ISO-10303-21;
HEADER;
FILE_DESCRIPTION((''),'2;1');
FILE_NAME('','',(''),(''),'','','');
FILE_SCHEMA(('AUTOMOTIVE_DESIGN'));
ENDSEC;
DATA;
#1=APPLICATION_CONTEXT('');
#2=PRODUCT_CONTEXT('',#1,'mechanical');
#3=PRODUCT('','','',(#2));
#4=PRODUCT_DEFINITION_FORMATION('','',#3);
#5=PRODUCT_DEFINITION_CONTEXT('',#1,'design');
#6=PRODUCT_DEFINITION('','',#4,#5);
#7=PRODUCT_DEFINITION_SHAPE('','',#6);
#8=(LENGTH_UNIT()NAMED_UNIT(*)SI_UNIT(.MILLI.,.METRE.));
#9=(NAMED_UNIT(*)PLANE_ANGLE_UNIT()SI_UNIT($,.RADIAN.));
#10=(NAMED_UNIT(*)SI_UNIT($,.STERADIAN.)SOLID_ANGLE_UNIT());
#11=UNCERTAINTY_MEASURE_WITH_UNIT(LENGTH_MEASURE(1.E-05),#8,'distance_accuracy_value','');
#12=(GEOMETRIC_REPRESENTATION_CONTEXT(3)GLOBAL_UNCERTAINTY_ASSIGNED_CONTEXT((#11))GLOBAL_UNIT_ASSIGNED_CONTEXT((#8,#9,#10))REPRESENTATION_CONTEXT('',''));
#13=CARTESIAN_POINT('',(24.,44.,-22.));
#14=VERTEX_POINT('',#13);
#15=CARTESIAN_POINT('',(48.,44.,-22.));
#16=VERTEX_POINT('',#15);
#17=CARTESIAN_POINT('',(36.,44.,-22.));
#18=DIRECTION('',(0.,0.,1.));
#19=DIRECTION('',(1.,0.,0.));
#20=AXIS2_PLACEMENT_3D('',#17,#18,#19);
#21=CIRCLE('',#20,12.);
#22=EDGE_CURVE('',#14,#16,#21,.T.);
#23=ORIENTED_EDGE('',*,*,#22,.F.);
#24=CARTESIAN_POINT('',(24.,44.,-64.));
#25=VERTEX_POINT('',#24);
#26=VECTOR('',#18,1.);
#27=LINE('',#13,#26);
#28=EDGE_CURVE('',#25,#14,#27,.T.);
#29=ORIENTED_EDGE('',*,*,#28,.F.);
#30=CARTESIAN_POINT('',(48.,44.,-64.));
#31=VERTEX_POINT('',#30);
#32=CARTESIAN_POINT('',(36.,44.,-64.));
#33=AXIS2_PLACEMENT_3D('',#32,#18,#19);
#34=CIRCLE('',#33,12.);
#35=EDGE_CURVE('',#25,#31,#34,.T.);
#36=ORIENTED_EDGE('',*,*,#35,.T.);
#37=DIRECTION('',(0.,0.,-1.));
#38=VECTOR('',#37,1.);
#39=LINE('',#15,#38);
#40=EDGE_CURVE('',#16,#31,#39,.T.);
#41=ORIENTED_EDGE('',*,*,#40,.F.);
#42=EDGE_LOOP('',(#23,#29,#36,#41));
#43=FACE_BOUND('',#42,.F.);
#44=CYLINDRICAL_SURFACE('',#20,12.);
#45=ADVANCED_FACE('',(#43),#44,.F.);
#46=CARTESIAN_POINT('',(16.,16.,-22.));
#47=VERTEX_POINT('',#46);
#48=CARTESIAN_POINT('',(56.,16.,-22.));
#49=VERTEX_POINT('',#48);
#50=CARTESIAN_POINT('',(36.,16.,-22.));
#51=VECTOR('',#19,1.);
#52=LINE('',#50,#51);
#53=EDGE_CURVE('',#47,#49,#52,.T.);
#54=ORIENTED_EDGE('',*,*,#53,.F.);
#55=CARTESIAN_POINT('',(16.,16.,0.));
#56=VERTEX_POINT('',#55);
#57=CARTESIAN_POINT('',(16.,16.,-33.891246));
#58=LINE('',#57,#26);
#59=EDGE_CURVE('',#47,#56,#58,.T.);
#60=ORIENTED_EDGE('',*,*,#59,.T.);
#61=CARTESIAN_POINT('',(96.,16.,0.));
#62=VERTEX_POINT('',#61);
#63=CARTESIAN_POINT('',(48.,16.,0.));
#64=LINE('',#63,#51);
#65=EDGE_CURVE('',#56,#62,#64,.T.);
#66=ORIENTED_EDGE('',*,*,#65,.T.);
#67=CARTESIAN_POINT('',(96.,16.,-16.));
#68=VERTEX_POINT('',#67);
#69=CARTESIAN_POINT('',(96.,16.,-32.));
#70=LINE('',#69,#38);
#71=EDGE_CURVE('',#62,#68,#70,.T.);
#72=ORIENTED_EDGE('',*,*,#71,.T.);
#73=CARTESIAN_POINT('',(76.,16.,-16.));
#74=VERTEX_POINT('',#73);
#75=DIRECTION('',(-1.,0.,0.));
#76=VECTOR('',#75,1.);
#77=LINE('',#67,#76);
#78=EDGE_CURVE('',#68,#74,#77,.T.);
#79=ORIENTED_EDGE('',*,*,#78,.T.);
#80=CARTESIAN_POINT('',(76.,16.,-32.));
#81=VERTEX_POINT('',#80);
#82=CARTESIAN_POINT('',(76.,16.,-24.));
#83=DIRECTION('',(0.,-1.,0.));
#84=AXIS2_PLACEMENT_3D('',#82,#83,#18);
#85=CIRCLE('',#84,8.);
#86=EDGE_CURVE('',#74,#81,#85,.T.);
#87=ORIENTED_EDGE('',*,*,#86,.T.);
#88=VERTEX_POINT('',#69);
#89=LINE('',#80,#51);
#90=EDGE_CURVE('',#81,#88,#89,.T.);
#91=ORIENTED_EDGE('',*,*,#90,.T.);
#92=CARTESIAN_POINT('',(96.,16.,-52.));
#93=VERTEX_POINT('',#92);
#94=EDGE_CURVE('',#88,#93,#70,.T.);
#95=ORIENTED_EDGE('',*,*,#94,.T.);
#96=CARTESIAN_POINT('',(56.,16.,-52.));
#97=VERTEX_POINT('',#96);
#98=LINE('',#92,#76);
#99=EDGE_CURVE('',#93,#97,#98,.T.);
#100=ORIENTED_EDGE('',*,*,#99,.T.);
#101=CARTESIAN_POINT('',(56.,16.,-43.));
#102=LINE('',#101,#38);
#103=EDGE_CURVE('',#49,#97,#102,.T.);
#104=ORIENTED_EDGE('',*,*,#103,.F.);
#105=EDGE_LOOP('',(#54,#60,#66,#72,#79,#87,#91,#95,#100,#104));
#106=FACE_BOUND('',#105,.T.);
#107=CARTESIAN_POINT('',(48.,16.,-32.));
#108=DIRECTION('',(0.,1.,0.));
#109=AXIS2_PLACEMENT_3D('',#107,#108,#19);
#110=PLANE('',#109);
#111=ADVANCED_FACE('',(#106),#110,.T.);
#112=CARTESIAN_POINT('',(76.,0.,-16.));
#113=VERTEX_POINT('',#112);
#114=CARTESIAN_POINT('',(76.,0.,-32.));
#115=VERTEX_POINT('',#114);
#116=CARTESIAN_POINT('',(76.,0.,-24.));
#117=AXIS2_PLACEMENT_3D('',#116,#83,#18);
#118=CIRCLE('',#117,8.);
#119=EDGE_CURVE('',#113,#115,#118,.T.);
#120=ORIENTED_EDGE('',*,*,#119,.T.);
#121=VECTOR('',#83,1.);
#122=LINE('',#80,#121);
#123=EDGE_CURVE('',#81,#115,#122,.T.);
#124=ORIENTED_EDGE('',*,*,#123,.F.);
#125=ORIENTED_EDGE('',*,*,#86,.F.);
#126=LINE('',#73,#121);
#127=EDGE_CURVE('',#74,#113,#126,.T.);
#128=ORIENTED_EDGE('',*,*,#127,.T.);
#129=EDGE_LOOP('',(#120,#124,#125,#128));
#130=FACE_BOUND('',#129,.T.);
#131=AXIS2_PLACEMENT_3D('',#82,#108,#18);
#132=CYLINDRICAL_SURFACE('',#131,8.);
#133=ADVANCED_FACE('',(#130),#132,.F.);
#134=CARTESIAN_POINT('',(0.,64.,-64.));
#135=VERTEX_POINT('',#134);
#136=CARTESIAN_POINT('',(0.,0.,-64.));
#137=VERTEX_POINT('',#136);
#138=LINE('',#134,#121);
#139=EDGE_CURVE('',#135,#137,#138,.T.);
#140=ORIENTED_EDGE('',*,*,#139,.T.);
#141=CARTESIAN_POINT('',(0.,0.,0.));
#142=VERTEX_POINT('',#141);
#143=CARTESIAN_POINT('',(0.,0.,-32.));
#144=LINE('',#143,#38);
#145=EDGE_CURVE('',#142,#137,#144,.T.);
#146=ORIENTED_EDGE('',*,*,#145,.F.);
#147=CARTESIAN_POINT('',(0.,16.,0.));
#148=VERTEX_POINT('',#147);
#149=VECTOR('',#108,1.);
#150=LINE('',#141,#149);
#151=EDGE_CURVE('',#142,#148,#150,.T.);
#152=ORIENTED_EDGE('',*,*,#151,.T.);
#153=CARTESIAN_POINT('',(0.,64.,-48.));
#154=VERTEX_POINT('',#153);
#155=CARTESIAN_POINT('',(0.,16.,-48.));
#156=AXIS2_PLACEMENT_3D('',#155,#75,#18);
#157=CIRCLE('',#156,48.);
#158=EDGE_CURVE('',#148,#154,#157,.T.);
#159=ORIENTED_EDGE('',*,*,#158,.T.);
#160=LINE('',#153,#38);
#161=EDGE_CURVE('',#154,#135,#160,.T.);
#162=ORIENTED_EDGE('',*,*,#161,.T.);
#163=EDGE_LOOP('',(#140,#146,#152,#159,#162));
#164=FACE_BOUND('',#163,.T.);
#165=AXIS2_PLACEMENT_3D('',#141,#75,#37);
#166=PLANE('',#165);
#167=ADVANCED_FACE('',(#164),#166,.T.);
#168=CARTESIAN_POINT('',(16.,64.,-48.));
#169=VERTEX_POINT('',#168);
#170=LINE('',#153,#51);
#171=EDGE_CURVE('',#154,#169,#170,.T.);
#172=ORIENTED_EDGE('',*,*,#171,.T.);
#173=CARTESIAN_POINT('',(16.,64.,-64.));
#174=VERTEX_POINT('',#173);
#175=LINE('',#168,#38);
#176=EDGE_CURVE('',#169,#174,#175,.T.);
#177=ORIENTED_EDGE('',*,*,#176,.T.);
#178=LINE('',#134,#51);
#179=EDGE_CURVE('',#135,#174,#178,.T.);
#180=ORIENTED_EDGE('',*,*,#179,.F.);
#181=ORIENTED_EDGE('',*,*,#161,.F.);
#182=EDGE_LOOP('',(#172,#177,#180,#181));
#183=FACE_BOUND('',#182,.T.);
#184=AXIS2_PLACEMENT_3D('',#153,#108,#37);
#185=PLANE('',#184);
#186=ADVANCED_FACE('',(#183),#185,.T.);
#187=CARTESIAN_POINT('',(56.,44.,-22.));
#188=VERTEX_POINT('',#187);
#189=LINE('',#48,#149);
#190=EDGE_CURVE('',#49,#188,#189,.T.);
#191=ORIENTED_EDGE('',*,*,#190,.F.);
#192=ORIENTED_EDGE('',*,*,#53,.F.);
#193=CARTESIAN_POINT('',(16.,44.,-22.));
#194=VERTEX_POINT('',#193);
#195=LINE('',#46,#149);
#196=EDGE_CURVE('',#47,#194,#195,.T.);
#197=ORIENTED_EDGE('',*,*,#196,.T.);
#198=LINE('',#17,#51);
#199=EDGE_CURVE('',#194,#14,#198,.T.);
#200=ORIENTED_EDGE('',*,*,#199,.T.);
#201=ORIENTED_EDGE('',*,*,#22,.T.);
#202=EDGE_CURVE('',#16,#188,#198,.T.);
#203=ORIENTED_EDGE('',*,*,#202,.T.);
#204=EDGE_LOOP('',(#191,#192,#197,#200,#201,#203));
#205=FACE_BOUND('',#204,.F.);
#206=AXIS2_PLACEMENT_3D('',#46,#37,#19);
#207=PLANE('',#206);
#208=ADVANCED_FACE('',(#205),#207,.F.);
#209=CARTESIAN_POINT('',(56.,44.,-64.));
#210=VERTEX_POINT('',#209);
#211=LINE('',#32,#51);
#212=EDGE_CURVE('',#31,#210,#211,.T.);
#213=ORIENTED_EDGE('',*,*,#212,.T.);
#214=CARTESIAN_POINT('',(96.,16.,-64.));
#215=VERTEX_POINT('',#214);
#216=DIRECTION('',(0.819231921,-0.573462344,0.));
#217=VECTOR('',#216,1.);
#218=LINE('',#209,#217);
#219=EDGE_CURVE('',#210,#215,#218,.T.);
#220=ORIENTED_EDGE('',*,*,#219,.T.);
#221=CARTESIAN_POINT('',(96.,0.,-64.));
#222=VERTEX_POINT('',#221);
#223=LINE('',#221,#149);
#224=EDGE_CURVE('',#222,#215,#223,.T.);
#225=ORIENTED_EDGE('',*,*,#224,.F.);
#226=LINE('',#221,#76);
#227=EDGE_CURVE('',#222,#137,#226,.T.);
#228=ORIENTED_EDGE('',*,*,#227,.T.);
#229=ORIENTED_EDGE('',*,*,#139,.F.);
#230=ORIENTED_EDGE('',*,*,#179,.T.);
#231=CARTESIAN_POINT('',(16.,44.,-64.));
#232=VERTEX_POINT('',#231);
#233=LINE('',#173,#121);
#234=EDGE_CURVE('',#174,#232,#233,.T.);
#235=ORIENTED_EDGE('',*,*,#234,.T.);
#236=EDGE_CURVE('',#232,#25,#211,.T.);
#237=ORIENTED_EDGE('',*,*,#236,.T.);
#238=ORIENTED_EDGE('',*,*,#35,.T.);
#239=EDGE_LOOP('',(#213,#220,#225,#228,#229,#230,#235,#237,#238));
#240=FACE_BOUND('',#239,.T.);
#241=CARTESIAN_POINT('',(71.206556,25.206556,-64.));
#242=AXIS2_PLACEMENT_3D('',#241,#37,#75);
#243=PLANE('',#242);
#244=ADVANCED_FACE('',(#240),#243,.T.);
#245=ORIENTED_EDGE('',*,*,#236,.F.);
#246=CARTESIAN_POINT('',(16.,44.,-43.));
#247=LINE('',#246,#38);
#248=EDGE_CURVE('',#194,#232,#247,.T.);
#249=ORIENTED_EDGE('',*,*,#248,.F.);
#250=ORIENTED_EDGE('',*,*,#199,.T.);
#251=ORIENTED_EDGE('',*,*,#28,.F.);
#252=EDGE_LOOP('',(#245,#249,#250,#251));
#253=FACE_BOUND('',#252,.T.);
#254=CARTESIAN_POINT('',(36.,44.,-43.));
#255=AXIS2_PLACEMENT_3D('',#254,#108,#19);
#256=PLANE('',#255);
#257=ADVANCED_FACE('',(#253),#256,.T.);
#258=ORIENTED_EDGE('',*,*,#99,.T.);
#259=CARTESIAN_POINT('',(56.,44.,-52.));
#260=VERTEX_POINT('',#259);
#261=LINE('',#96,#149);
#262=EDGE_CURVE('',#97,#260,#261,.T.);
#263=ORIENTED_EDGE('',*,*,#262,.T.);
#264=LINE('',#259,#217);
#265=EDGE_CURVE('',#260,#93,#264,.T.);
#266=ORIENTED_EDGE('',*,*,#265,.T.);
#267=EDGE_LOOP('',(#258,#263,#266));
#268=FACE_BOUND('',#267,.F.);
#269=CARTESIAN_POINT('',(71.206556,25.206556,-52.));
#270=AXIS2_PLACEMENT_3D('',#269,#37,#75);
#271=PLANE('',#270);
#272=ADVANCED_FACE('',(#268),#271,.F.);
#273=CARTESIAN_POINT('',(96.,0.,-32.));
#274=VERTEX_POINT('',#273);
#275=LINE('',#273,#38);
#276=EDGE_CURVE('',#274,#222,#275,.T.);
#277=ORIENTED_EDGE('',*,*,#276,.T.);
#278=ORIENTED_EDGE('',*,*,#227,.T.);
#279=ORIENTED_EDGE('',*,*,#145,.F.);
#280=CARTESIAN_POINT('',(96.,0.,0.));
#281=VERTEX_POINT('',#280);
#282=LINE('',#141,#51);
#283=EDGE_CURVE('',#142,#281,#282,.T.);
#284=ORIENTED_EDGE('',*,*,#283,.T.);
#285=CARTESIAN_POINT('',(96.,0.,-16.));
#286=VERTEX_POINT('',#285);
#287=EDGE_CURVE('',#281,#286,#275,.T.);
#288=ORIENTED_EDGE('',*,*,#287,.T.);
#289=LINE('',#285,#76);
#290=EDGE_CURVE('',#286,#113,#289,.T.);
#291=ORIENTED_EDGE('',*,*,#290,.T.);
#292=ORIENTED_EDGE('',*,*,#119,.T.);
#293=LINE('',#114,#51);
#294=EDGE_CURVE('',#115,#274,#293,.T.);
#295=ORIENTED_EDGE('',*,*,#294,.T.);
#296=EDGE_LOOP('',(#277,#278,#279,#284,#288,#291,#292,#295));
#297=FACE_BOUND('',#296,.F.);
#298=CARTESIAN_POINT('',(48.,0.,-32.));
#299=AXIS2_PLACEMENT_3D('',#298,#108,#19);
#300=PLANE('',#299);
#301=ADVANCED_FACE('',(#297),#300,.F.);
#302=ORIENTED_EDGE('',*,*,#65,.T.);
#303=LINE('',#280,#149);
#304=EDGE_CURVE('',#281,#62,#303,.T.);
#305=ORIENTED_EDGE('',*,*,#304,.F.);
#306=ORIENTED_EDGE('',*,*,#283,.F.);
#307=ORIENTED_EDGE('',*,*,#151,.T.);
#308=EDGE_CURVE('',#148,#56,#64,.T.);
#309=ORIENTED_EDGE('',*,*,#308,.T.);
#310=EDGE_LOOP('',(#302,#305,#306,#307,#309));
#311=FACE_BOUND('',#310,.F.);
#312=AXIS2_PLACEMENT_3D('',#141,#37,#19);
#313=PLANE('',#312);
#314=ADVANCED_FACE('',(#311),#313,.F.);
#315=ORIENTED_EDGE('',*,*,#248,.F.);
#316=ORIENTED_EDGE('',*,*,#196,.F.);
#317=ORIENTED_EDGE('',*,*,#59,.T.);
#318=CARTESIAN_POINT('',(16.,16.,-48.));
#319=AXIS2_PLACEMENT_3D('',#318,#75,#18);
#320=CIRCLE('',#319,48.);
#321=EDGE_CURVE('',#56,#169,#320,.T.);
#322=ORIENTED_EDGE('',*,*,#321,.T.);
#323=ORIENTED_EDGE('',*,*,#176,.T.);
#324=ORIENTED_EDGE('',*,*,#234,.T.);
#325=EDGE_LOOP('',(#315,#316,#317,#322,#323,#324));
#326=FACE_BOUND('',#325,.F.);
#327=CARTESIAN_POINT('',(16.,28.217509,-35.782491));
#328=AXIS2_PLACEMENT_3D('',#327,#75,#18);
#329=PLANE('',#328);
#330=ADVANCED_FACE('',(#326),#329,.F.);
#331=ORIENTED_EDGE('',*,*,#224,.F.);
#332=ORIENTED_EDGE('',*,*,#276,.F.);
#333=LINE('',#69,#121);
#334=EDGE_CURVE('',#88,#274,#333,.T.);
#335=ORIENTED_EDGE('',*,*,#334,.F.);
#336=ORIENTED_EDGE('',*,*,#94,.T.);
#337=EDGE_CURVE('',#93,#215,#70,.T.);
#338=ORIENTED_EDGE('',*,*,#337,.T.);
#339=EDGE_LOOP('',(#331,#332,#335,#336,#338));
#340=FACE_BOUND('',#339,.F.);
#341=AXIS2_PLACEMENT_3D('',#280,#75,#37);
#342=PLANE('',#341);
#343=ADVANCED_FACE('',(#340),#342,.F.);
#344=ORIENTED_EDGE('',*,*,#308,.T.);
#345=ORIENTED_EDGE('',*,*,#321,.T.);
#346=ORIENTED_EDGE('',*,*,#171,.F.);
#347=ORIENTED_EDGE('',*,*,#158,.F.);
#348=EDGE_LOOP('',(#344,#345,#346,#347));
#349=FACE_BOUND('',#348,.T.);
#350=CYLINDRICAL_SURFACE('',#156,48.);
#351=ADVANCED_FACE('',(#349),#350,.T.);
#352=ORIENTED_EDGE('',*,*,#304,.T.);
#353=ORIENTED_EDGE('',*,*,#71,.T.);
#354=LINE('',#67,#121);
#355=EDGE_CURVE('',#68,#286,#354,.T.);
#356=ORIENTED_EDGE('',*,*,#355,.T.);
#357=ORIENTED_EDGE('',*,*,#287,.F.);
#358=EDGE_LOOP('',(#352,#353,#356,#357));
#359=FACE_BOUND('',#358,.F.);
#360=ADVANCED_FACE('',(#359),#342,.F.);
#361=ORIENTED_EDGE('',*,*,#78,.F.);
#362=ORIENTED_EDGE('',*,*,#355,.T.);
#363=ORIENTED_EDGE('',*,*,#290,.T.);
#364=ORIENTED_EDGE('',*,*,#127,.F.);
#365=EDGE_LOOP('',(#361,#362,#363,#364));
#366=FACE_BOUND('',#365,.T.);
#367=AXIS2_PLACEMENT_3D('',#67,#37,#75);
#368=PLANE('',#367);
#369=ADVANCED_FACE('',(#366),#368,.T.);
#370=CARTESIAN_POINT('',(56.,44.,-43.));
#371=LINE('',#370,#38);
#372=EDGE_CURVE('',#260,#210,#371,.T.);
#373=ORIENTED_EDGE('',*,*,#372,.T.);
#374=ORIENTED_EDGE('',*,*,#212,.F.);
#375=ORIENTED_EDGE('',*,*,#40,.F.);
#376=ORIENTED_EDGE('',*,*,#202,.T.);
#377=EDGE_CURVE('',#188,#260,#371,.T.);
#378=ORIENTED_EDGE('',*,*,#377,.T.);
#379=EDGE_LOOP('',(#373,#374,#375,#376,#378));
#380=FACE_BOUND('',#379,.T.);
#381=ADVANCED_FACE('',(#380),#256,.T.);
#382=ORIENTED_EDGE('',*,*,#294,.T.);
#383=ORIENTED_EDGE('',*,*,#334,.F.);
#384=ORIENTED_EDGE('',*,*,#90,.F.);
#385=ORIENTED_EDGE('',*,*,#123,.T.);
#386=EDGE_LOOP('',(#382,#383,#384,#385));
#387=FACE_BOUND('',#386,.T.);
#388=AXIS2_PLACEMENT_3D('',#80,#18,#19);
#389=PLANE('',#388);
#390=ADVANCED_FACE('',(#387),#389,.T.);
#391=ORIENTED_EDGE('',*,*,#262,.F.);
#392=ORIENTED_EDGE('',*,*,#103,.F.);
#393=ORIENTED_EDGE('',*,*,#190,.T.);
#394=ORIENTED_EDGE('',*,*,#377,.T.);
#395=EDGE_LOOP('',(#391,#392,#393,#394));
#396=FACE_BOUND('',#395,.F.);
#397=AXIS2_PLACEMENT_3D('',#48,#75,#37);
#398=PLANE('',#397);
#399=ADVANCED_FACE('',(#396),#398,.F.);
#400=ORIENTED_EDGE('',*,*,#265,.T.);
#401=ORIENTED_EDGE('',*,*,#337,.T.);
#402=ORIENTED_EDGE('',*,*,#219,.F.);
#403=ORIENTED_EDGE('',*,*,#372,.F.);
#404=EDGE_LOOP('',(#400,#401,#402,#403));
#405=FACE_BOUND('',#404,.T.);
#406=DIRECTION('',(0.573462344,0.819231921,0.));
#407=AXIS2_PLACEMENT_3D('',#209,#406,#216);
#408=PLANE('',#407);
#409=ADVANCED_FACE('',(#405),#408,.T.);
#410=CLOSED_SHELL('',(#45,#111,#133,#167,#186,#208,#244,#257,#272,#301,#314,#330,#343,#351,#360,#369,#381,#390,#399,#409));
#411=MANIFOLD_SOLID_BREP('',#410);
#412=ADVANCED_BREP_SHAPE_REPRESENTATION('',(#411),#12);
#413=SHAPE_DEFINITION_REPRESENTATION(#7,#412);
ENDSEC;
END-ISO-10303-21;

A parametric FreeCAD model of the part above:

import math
import FreeCAD as App
import Part
import Sketcher
Q = App.Units.Quantity


def add_polygon(sketch, points):
    """Adds a closed chain of lines whose ends are joined by coincident constraints."""
    first, n = sketch.GeometryCount, len(points)
    for a, b in zip(points, points[1:] + points[:1]):
        sketch.addGeometry(Part.LineSegment(App.Vector(*a, 0), App.Vector(*b, 0)), False)
    for i in range(n):
        sketch.addConstraint(Sketcher.Constraint("Coincident", first + i, 2, first + (i + 1) % n, 1))

doc = App.newDocument("Part")
body = doc.addObject("PartDesign::Body", "Body")

sketch1 = doc.addObject("Sketcher::SketchObject", "Sketch")
body.addObject(sketch1)
sketch1.AttachmentSupport = (doc.XZ_Plane, [""])
sketch1.MapMode = "FlatFace"
add_polygon(sketch1, [(0, -64), (0, 0), (96, 0), (96, -64)])
sketch1.addConstraint([
    Sketcher.Constraint("Vertical", 0),
    Sketcher.Constraint("Horizontal", 1),
    Sketcher.Constraint("Vertical", 2),
    Sketcher.Constraint("Horizontal", 3),
    Sketcher.Constraint("Coincident", 0, 2, -1, 1),
    Sketcher.Constraint("DistanceX", 1, 1, 1, 2, Q("96 mm")),
    Sketcher.Constraint("DistanceY", 0, 1, 0, 2, Q("64 mm")),
])
pad1 = doc.addObject("PartDesign::Pad", "Pad")
body.addObject(pad1)
pad1.Profile = sketch1
pad1.Length = 16
pad1.Reversed = True

sketch2 = doc.addObject("Sketcher::SketchObject", "Sketch001")
body.addObject(sketch2)
sketch2.AttachmentSupport = (doc.XZ_Plane, [""])
sketch2.MapMode = "FlatFace"
sketch2.AttachmentOffset = App.Placement(App.Vector(0, 0, -16), App.Rotation())
sketch2.addGeometry([
    Part.LineSegment(App.Vector(76, -16, 0), App.Vector(96, -16, 0)),
    Part.ArcOfCircle(Part.Circle(App.Vector(96, -24, 0), App.Vector(0, 0, 1), 8), math.radians(-90), math.radians(90)),
    Part.LineSegment(App.Vector(96, -32, 0), App.Vector(76, -32, 0)),
    Part.ArcOfCircle(Part.Circle(App.Vector(76, -24, 0), App.Vector(0, 0, 1), 8), math.radians(90), math.radians(270)),
], False)
sketch2.addConstraint([
    Sketcher.Constraint("Tangent", 0, 2, 1, 2),
    Sketcher.Constraint("Tangent", 1, 1, 2, 1),
    Sketcher.Constraint("Tangent", 2, 2, 3, 2),
    Sketcher.Constraint("Tangent", 3, 1, 0, 1),
    Sketcher.Constraint("Horizontal", 0),
    Sketcher.Constraint("Horizontal", 2),
    Sketcher.Constraint("Radius", 1, Q("8 mm")),
    Sketcher.Constraint("DistanceX", 0, 1, 0, 2, Q("20 mm")),
    Sketcher.Constraint("DistanceX", -1, 1, 1, 3, Q("96 mm")),
    Sketcher.Constraint("DistanceY", 1, 3, -1, 1, Q("24 mm")),
])
pocket1 = doc.addObject("PartDesign::Pocket", "Pocket")
body.addObject(pocket1)
pocket1.Profile = sketch2
pocket1.Length = 16
pocket1.Reversed = True

sketch3 = doc.addObject("Sketcher::SketchObject", "Sketch002")
body.addObject(sketch3)
sketch3.AttachmentSupport = (doc.YZ_Plane, [""])
sketch3.MapMode = "FlatFace"
sketch3.addGeometry([
    Part.LineSegment(App.Vector(0, -64, 0), App.Vector(0, 0, 0)),
    Part.LineSegment(App.Vector(0, 0, 0), App.Vector(16, 0, 0)),
    Part.ArcOfCircle(Part.Circle(App.Vector(16, -48, 0), App.Vector(0, 0, 1), 48), math.radians(0), math.radians(90)),
    Part.LineSegment(App.Vector(64, -48, 0), App.Vector(64, -64, 0)),
    Part.LineSegment(App.Vector(64, -64, 0), App.Vector(0, -64, 0)),
], False)
sketch3.addConstraint([
    Sketcher.Constraint("Coincident", 0, 2, 1, 1),
    Sketcher.Constraint("Tangent", 1, 2, 2, 2),
    Sketcher.Constraint("Tangent", 2, 1, 3, 1),
    Sketcher.Constraint("Coincident", 3, 2, 4, 1),
    Sketcher.Constraint("Coincident", 4, 2, 0, 1),
    Sketcher.Constraint("Vertical", 0),
    Sketcher.Constraint("Horizontal", 1),
    Sketcher.Constraint("Vertical", 3),
    Sketcher.Constraint("Horizontal", 4),
    Sketcher.Constraint("Coincident", 0, 2, -1, 1),
    Sketcher.Constraint("Equal", 4, 0),
    Sketcher.Constraint("Radius", 2, Q("48 mm")),
    Sketcher.Constraint("DistanceX", 1, 1, 1, 2, Q("16 mm")),
])
pad2 = doc.addObject("PartDesign::Pad", "Pad001")
body.addObject(pad2)
pad2.Profile = sketch3
pad2.Length = 16

sketch4 = doc.addObject("Sketcher::SketchObject", "Sketch003")
body.addObject(sketch4)
sketch4.AttachmentSupport = (doc.XZ_Plane, [""])
sketch4.MapMode = "FlatFace"
sketch4.AttachmentOffset = App.Placement(App.Vector(0, 0, -16), App.Rotation())
add_polygon(sketch4, [(16, -64), (16, -22), (56, -22), (56, -64)])
sketch4.addConstraint([
    Sketcher.Constraint("Vertical", 0),
    Sketcher.Constraint("Horizontal", 1),
    Sketcher.Constraint("Vertical", 2),
    Sketcher.Constraint("Horizontal", 3),
    Sketcher.Constraint("DistanceX", 1, 1, 1, 2, Q("40 mm")),
    Sketcher.Constraint("DistanceY", 0, 1, 0, 2, Q("42 mm")),
    Sketcher.Constraint("DistanceX", -1, 1, 0, 2, Q("16 mm")),
    Sketcher.Constraint("DistanceY", 0, 2, -1, 1, Q("22 mm")),
])
pad3 = doc.addObject("PartDesign::Pad", "Pad002")
body.addObject(pad3)
pad3.Profile = sketch4
pad3.Length = 28
pad3.Reversed = True

sketch5 = doc.addObject("Sketcher::SketchObject", "Sketch004")
body.addObject(sketch5)
sketch5.AttachmentSupport = (doc.XY_Plane, [""])
sketch5.MapMode = "FlatFace"
sketch5.AttachmentOffset = App.Placement(App.Vector(0, 0, -22), App.Rotation())
sketch5.addGeometry(Part.Circle(App.Vector(36, 44, 0), App.Vector(0, 0, 1), 12), False)
sketch5.addConstraint([
    Sketcher.Constraint("Diameter", 0, Q("24 mm")),
    Sketcher.Constraint("DistanceX", -1, 1, 0, 3, Q("36 mm")),
    Sketcher.Constraint("DistanceY", -1, 1, 0, 3, Q("44 mm")),
])
pocket2 = doc.addObject("PartDesign::Pocket", "Pocket001")
body.addObject(pocket2)
pocket2.Profile = sketch5
pocket2.Type = "UpToFirst"

sketch6 = doc.addObject("Sketcher::SketchObject", "Sketch005")
body.addObject(sketch6)
sketch6.AttachmentSupport = (doc.XY_Plane, [""])
sketch6.MapMode = "FlatFace"
sketch6.AttachmentOffset = App.Placement(App.Vector(0, 0, -64), App.Rotation())
add_polygon(sketch6, [(56, 44), (96, 16), (56, 16)])
sketch6.addConstraint([
    Sketcher.Constraint("Horizontal", 1),
    Sketcher.Constraint("Vertical", 2),
    Sketcher.Constraint("DistanceX", 1, 2, 1, 1, Q("40 mm")),
    Sketcher.Constraint("DistanceY", 2, 1, 2, 2, Q("28 mm")),
    Sketcher.Constraint("DistanceX", -1, 1, 0, 2, Q("96 mm")),
    Sketcher.Constraint("DistanceY", -1, 1, 0, 2, Q("16 mm")),
])
pad4 = doc.addObject("PartDesign::Pad", "Pad003")
body.addObject(pad4)
pad4.Profile = sketch6
pad4.Length = 12

doc.recompute()
